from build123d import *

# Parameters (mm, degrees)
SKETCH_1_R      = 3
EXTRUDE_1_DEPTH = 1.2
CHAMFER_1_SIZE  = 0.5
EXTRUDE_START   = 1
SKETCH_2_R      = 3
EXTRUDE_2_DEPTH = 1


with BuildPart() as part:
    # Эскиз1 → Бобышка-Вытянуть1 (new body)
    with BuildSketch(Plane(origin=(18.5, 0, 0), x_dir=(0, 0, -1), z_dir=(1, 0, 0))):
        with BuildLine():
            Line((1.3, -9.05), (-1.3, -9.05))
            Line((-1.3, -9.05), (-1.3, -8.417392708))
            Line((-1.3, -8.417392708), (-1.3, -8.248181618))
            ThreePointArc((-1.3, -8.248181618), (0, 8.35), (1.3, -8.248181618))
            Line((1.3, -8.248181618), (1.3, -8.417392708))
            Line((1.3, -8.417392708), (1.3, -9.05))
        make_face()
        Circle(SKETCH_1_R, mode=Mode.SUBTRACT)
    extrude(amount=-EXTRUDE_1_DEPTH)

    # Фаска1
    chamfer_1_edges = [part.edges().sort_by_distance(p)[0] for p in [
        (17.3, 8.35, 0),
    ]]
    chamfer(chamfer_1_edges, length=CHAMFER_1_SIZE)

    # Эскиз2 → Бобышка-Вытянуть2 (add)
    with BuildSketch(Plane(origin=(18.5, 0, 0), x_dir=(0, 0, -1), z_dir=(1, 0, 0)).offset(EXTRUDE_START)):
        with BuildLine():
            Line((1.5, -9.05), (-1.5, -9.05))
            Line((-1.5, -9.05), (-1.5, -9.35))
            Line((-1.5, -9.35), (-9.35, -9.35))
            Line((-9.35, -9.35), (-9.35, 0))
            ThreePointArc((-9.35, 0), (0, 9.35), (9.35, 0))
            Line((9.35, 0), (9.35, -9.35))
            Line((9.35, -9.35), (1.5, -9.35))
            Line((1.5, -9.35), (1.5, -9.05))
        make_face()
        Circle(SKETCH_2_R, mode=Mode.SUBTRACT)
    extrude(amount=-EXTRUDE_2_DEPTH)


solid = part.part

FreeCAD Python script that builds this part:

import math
import FreeCAD as App
import Part
import Sketcher
Q = App.Units.Quantity


def edges_at(feature, points):
    """Names of the edges that pass closest to the given points."""
    edges = feature.Shape.Edges
    near = lambda p: min(range(len(edges)), key=lambda i: edges[i].distToShape(Part.Vertex(*p))[0])
    return sorted({f"Edge{near(p) + 1}" for p in points})

doc = App.newDocument("Part")
body = doc.addObject("PartDesign::Body", "Body")

# Sketch on YZ plane
sketch1 = doc.addObject("Sketcher::SketchObject", "Sketch")
body.addObject(sketch1)
sketch1.AttachmentSupport = (doc.YZ_Plane, [""])
sketch1.MapMode = "FlatFace"
sketch1.AttachmentOffset = App.Placement(App.Vector(0, 0, 18.5), App.Rotation())
sketch1.addGeometry([
    Part.LineSegment(App.Vector(-9.1, 1.3, 0), App.Vector(-9.1, -1.3, 0)),  # 0
    Part.LineSegment(App.Vector(-9.1, -1.3, 0), App.Vector(-8.2, -1.3, 0)),  # 1
    Part.ArcOfCircle(Part.Circle(App.Vector(0, 0, 0), App.Vector(0, 0, 1), 8.3), math.radians(-171), math.radians(171)),  # 2
    Part.LineSegment(App.Vector(-8.2, 1.3, 0), App.Vector(-9.1, 1.3, 0)),  # 3
    Part.Circle(App.Vector(0, 0, 0), App.Vector(0, 0, 1), 3),  # 4
], False)
sketch1.addConstraint([
    Sketcher.Constraint("Coincident", 0, 2, 1, 1),
    Sketcher.Constraint("Coincident", 1, 2, 2, 1),
    Sketcher.Constraint("Coincident", 2, 2, 3, 1),
    Sketcher.Constraint("Coincident", 3, 2, 0, 1),
    Sketcher.Constraint("Vertical", 0),
    Sketcher.Constraint("Horizontal", 1),
    Sketcher.Constraint("Horizontal", 3),
    Sketcher.Constraint("Coincident", 2, 3, -1, 1),
    Sketcher.Constraint("Coincident", 4, 3, -1, 1),
    Sketcher.Constraint("Vertical", 1, 2, 2, 2),
    Sketcher.Constraint("Diameter", 4, Q("6 mm")),
    Sketcher.Constraint("Radius", 2, Q("8.35 mm")),
    Sketcher.Constraint("DistanceY", 0, 2, 0, 1, Q("2.6 mm")),
    Sketcher.Constraint("DistanceX", 0, 2, -1, 1, Q("9.05 mm")),
])
pad1 = doc.addObject("PartDesign::Pad", "Pad")
body.addObject(pad1)
pad1.Profile = sketch1
pad1.Length = 1.2
pad1.Reversed = True
doc.recompute()

chamfer = doc.addObject("PartDesign::Chamfer", "Chamfer")
body.addObject(chamfer)
chamfer.Base = (pad1, edges_at(pad1, [(17.3, 8.35, 0)]))
chamfer.Size = 0.5

# Sketch on YZ plane
sketch2 = doc.addObject("Sketcher::SketchObject", "Sketch001")
body.addObject(sketch2)
sketch2.AttachmentSupport = (doc.YZ_Plane, [""])
sketch2.MapMode = "FlatFace"
sketch2.AttachmentOffset = App.Placement(App.Vector(0, 0, 19.5), App.Rotation())
sketch2.addGeometry([
    Part.LineSegment(App.Vector(-9.05, 1.5, 0), App.Vector(-9.05, -1.5, 0)),  # 0
    Part.LineSegment(App.Vector(-9.05, -1.5, 0), App.Vector(-9.35, -1.5, 0)),  # 1
    Part.LineSegment(App.Vector(-9.35, -1.5, 0), App.Vector(-9.35, -9.35, 0)),  # 2
    Part.LineSegment(App.Vector(-9.35, -9.35, 0), App.Vector(0, -9.35, 0)),  # 3
    Part.ArcOfCircle(Part.Circle(App.Vector(0, 0, 0), App.Vector(0, 0, 1), 9.35), math.radians(-90), math.radians(90)),  # 4
    Part.LineSegment(App.Vector(0, 9.35, 0), App.Vector(-9.35, 9.35, 0)),  # 5
    Part.LineSegment(App.Vector(-9.35, 9.35, 0), App.Vector(-9.35, 1.5, 0)),  # 6
    Part.LineSegment(App.Vector(-9.35, 1.5, 0), App.Vector(-9.05, 1.5, 0)),  # 7
    Part.Circle(App.Vector(0, 0, 0), App.Vector(0, 0, 1), 3),  # 8
], False)
sketch2.addConstraint([
    Sketcher.Constraint("Coincident", 0, 2, 1, 1),
    Sketcher.Constraint("Coincident", 1, 2, 2, 1),
    Sketcher.Constraint("Coincident", 2, 2, 3, 1),
    Sketcher.Constraint("Tangent", 3, 2, 4, 1),
    Sketcher.Constraint("Tangent", 4, 2, 5, 1),
    Sketcher.Constraint("Coincident", 5, 2, 6, 1),
    Sketcher.Constraint("Coincident", 6, 2, 7, 1),
    Sketcher.Constraint("Coincident", 7, 2, 0, 1),
    Sketcher.Constraint("Vertical", 0),
    Sketcher.Constraint("Horizontal", 1),
    Sketcher.Constraint("Vertical", 2),
    Sketcher.Constraint("Horizontal", 3),
    Sketcher.Constraint("Horizontal", 5),
    Sketcher.Constraint("Vertical", 6),
    Sketcher.Constraint("Horizontal", 7),
    Sketcher.Constraint("Coincident", 4, 3, -1, 1),
    Sketcher.Constraint("Coincident", 8, 3, -1, 1),
    Sketcher.Constraint("Symmetric", 1, 2, 6, 2, -1),
    Sketcher.Constraint("Diameter", 8, Q("6 mm")),
    Sketcher.Constraint("DistanceY", 0, 2, 0, 1, Q("3 mm")),
    Sketcher.Constraint("Radius", 4, Q("9.35 mm")),
    Sketcher.Constraint("DistanceX", 1, 2, 1, 1, Q("0.3 mm")),
    Sketcher.Constraint("DistanceX", 3, 1, 3, 2, Q("9.35 mm")),
])
pad2 = doc.addObject("PartDesign::Pad", "Pad001")
body.addObject(pad2)
pad2.Profile = sketch2
pad2.Length = 1
pad2.Reversed = True

doc.recompute()
